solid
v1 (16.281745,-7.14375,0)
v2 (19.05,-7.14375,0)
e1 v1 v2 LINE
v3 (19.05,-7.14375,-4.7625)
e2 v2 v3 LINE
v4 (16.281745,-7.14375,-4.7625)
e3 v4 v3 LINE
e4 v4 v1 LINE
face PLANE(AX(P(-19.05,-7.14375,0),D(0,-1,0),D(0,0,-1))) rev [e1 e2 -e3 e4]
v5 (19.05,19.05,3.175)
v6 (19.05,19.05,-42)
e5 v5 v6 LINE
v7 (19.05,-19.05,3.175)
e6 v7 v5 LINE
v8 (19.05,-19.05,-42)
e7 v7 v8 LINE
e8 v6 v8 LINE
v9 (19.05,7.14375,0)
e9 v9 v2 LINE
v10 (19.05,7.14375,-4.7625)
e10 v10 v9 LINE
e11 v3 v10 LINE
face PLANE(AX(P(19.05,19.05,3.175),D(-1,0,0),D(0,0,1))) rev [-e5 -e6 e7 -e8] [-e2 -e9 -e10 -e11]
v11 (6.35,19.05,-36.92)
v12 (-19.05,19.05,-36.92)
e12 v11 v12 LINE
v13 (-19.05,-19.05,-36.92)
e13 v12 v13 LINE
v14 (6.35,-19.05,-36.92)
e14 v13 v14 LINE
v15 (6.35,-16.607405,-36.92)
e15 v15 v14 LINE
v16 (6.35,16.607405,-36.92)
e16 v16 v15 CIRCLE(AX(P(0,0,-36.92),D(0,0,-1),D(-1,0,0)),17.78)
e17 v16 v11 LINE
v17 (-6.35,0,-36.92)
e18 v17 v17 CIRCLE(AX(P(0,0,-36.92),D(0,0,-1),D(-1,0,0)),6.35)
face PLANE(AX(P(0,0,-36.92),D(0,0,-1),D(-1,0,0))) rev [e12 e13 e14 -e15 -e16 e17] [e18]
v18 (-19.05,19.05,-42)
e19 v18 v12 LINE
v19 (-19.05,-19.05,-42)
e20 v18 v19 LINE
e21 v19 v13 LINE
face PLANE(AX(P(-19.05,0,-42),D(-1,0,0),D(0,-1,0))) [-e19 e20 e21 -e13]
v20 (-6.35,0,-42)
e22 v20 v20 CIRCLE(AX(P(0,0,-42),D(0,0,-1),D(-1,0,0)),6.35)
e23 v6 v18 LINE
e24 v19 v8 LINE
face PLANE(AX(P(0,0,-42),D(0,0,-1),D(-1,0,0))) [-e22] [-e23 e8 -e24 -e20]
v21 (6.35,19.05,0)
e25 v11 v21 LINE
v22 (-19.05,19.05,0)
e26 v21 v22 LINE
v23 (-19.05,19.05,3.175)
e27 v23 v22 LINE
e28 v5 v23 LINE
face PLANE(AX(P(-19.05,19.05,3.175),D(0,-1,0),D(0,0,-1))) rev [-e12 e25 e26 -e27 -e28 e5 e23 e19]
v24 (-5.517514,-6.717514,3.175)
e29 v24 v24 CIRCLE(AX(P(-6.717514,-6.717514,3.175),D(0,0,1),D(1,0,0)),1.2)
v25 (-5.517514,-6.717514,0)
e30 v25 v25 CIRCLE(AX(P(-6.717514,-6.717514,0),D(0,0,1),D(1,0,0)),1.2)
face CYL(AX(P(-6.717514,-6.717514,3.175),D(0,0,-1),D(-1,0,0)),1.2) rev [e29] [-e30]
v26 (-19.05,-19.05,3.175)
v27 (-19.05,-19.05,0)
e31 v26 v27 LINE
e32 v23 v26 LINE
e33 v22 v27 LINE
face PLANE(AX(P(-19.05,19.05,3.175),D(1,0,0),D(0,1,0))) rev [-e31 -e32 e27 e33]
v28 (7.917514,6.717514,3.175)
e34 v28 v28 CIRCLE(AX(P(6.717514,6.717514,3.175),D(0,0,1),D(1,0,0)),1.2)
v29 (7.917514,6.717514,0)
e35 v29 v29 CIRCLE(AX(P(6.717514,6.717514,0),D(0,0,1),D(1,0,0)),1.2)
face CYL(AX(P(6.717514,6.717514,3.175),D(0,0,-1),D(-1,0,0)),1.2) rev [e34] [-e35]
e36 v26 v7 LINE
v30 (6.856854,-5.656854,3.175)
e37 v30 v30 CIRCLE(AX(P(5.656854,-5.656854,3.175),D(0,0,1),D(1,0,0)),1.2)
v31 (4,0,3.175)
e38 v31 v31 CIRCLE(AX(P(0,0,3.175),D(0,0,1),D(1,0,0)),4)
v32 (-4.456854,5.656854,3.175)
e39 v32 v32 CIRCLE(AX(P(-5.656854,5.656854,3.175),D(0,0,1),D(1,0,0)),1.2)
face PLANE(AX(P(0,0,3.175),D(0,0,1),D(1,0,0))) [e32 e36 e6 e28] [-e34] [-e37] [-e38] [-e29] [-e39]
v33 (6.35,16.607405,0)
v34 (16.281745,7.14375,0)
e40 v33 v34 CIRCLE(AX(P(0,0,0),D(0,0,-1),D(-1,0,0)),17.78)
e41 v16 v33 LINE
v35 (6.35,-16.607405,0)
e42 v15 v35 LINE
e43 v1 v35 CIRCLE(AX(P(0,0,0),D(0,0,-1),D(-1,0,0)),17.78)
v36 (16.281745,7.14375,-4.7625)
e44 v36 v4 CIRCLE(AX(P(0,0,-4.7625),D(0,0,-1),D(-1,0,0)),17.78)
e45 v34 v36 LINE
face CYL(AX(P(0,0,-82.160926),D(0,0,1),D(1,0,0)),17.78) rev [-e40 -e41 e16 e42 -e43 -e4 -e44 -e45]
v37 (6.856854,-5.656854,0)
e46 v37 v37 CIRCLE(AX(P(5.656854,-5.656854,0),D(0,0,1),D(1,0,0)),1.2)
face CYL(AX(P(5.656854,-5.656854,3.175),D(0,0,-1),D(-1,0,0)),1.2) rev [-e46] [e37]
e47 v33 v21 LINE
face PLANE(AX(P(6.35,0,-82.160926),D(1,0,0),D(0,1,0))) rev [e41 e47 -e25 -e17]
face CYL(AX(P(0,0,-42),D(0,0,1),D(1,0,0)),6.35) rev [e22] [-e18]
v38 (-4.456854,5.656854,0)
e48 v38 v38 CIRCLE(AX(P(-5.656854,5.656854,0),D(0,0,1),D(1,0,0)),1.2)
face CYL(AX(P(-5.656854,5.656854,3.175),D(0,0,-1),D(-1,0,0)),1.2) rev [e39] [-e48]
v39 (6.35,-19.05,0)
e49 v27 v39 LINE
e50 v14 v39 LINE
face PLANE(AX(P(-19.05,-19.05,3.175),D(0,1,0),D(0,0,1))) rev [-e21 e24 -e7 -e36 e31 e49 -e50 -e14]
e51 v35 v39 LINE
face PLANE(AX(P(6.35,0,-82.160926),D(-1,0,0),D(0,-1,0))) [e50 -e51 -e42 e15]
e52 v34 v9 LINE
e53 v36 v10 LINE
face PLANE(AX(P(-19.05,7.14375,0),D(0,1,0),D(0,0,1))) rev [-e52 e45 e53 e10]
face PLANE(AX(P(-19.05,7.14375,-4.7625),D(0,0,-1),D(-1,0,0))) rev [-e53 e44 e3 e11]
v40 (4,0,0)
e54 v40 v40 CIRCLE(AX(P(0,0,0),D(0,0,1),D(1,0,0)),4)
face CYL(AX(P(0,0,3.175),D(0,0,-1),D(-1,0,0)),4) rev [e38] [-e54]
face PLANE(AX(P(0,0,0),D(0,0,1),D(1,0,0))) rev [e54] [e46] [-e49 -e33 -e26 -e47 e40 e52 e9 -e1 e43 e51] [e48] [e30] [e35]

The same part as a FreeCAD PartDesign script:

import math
import FreeCAD as App
import Part
import Sketcher

V = App.Vector
Q = App.Units.Quantity

doc = App.newDocument("Part")
body = doc.addObject("PartDesign::Body", "Body")

# Sketch on XY plane
sketch1 = body.newObject("Sketcher::SketchObject", "Sketch")
sketch1.AttachmentSupport = (doc.getObject("XY_Plane"), [""])
sketch1.MapMode = "FlatFace"
sketch1.addGeometry([
    Part.LineSegment(V(-19.1, 19.1, 0), V(-19.1, -19.1, 0)),  # 0
    Part.LineSegment(V(-19.1, -19.1, 0), V(19.1, -19.1, 0)),  # 1
    Part.LineSegment(V(19.1, -19.1, 0), V(19.1, 19.1, 0)),  # 2
    Part.LineSegment(V(19.1, 19.1, 0), V(-19.1, 19.1, 0)),  # 3
    Part.Circle(V(-6.7, -6.7, 0), V(0, 0, 1), 1.2),  # 4
    Part.Circle(V(5.7, -5.7, 0), V(0, 0, 1), 1.2),  # 5
    Part.Circle(V(-5.7, 5.7, 0), V(0, 0, 1), 1.2),  # 6
    Part.Circle(V(0, 0, 0), V(0, 0, 1), 4),  # 7
    Part.Circle(V(6.7, 6.7, 0), V(0, 0, 1), 1.2),  # 8
], False)
sketch1.addConstraint([
    Sketcher.Constraint("Coincident", 0, 2, 1, 1),
    Sketcher.Constraint("Coincident", 1, 2, 2, 1),
    Sketcher.Constraint("Coincident", 2, 2, 3, 1),
    Sketcher.Constraint("Coincident", 3, 2, 0, 1),
    Sketcher.Constraint("Vertical", 0),
    Sketcher.Constraint("Horizontal", 1),
    Sketcher.Constraint("Vertical", 2),
    Sketcher.Constraint("Horizontal", 3),
    Sketcher.Constraint("Coincident", 7, 3, -1, 1),
    Sketcher.Constraint("Equal", 4, 5),
    Sketcher.Constraint("Equal", 5, 6),
    Sketcher.Constraint("Equal", 6, 8),
    Sketcher.Constraint("Symmetric", 5, 3, 6, 3, -1, 1),
    Sketcher.Constraint("Symmetric", 4, 3, 8, 3, -1, 1),
    Sketcher.Constraint("Symmetric", 0, 2, 2, 2, -1, 1),
    Sketcher.Constraint("Equal", 3, 0),
    Sketcher.Constraint("DistanceX", 1, 1, 1, 2, Q("1.5 in")),
    Sketcher.Constraint("Diameter", 4, 2.4),
    Sketcher.Constraint("Diameter", 7, 8.0),
    Sketcher.Constraint("DistanceX", 4, 3, 5, 3, 12.374369),
    Sketcher.Constraint("DistanceY", 4, 3, 5, 3, 1.06066),
    Sketcher.Constraint("DistanceX", 4, 3, 6, 3, 1.06066),
    Sketcher.Constraint("DistanceY", 4, 3, 6, 3, 12.374369),
])
pad1 = body.newObject("PartDesign::Pad", "Pad")
pad1.Profile = sketch1
pad1.Length = Q("0.125 in")

# Sketch on XY plane
sketch2 = body.newObject("Sketcher::SketchObject", "Sketch001")
sketch2.AttachmentSupport = (doc.getObject("XY_Plane"), [""])
sketch2.MapMode = "FlatFace"
sketch2.addGeometry([
    Part.LineSegment(V(19.1, -19.1, 0), V(6.3, -19.1, 0)),  # 0
    Part.LineSegment(V(6.3, -19.1, 0), V(6.3, -16.6, 0)),  # 1
    Part.ArcOfCircle(Part.Circle(V(0, 0, 0), V(0, 0, 1), 17.8), math.radians(-69), math.radians(69)),  # 2
    Part.LineSegment(V(6.3, 16.6, 0), V(6.3, 19.1, 0)),  # 3
    Part.LineSegment(V(6.3, 19.1, 0), V(19.1, 19.1, 0)),  # 4
    Part.LineSegment(V(19.1, 19.1, 0), V(19.1, -19.1, 0)),  # 5
], False)
sketch2.addConstraint([
    Sketcher.Constraint("Coincident", 0, 2, 1, 1),
    Sketcher.Constraint("Coincident", 1, 2, 2, 1),
    Sketcher.Constraint("Coincident", 2, 2, 3, 1),
    Sketcher.Constraint("Coincident", 3, 2, 4, 1),
    Sketcher.Constraint("Coincident", 4, 2, 5, 1),
    Sketcher.Constraint("Coincident", 5, 2, 0, 1),
    Sketcher.Constraint("Horizontal", 0),
    Sketcher.Constraint("Vertical", 1),
    Sketcher.Constraint("Vertical", 3),
    Sketcher.Constraint("Horizontal", 4),
    Sketcher.Constraint("Vertical", 5),
    Sketcher.Constraint("Coincident", 2, 3, -1, 1),
    Sketcher.Constraint("Symmetric", 0, 2, 3, 2, -1),
    Sketcher.Constraint("Radius", 2, Q("0.7 in")),
    Sketcher.Constraint("DistanceX", 0, 2, 0, 1, Q("0.5 in")),
    Sketcher.Constraint("DistanceY", 5, 2, 5, 1, Q("1.5 in")),
    Sketcher.Constraint("DistanceX", -1, 1, 0, 2, Q("0.25 in")),
])
pad2 = body.newObject("PartDesign::Pad", "Pad001")
pad2.Profile = sketch2
pad2.Length = 36.92
pad2.Reversed = True

# Sketch on XY plane
sketch3 = body.newObject("Sketcher::SketchObject", "Sketch002")
sketch3.AttachmentSupport = (doc.getObject("XY_Plane"), [""])
sketch3.MapMode = "FlatFace"
sketch3.AttachmentOffset = App.Placement(V(0, 0, -36.92), App.Rotation())
sketch3.addGeometry([
    Part.LineSegment(V(-19, -19, 0), V(-19, 19, 0)),  # 0
    Part.LineSegment(V(-19, 19, 0), V(19, 19, 0)),  # 1
    Part.LineSegment(V(19, 19, 0), V(19, -19, 0)),  # 2
    Part.LineSegment(V(19, -19, 0), V(-19, -19, 0)),  # 3
    Part.Circle(V(0, 0, 0), V(0, 0, 1), 6),  # 4
], False)
sketch3.addConstraint([
    Sketcher.Constraint("Coincident", 0, 2, 1, 1),
    Sketcher.Constraint("Coincident", 1, 2, 2, 1),
    Sketcher.Constraint("Coincident", 2, 2, 3, 1),
    Sketcher.Constraint("Coincident", 3, 2, 0, 1),
    Sketcher.Constraint("Vertical", 0),
    Sketcher.Constraint("Horizontal", 1),
    Sketcher.Constraint("Vertical", 2),
    Sketcher.Constraint("Horizontal", 3),
    Sketcher.Constraint("Coincident", 4, 3, -1, 1),
    Sketcher.Constraint("Symmetric", 0, 2, 2, 2, -1, 1),
    Sketcher.Constraint("Equal", 3, 0),
    Sketcher.Constraint("Diameter", 4, Q("0.5 in")),
    Sketcher.Constraint("DistanceX", 1, 1, 1, 2, Q("1.5 in")),
])
pad3 = body.newObject("PartDesign::Pad", "Pad002")
pad3.Profile = sketch3
pad3.Length = Q("0.2 in")
pad3.Reversed = True

# Sketch on YZ plane
sketch4 = body.newObject("Sketcher::SketchObject", "Sketch003")
sketch4.AttachmentSupport = (doc.getObject("YZ_Plane"), [""])
sketch4.MapMode = "FlatFace"
sketch4.AttachmentOffset = App.Placement(V(0, 0, 0.75 * 25.4), App.Rotation())
sketch4.addGeometry([
    Part.LineSegment(V(7.1, 0, 0), V(-7.1, 0, 0)),
    Part.LineSegment(V(-7.1, 0, 0), V(-7.1, -4.8, 0)),
    Part.LineSegment(V(-7.1, -4.8, 0), V(7.1, -4.8, 0)),
    Part.LineSegment(V(7.1, -4.8, 0), V(7.1, 0, 0)),
], False)
sketch4.addConstraint([
    Sketcher.Constraint("Coincident", 0, 2, 1, 1),
    Sketcher.Constraint("Coincident", 1, 2, 2, 1),
    Sketcher.Constraint("Coincident", 2, 2, 3, 1),
    Sketcher.Constraint("Coincident", 3, 2, 0, 1),
    Sketcher.Constraint("Horizontal", 0),
    Sketcher.Constraint("Vertical", 1),
    Sketcher.Constraint("Horizontal", 2),
    Sketcher.Constraint("Vertical", 3),
    Sketcher.Constraint("Symmetric", 0, 2, 3, 2, -1, 1),
    Sketcher.Constraint("DistanceX", 0, 2, 0, 1, Q("0.5625 in")),
    Sketcher.Constraint("DistanceY", 1, 2, 1, 1, Q("0.1875 in")),
])
pocket1 = body.newObject("PartDesign::Pocket", "Pocket")
pocket1.Profile = sketch4
pocket1.Type = "ThroughAll"

doc.recompute()
